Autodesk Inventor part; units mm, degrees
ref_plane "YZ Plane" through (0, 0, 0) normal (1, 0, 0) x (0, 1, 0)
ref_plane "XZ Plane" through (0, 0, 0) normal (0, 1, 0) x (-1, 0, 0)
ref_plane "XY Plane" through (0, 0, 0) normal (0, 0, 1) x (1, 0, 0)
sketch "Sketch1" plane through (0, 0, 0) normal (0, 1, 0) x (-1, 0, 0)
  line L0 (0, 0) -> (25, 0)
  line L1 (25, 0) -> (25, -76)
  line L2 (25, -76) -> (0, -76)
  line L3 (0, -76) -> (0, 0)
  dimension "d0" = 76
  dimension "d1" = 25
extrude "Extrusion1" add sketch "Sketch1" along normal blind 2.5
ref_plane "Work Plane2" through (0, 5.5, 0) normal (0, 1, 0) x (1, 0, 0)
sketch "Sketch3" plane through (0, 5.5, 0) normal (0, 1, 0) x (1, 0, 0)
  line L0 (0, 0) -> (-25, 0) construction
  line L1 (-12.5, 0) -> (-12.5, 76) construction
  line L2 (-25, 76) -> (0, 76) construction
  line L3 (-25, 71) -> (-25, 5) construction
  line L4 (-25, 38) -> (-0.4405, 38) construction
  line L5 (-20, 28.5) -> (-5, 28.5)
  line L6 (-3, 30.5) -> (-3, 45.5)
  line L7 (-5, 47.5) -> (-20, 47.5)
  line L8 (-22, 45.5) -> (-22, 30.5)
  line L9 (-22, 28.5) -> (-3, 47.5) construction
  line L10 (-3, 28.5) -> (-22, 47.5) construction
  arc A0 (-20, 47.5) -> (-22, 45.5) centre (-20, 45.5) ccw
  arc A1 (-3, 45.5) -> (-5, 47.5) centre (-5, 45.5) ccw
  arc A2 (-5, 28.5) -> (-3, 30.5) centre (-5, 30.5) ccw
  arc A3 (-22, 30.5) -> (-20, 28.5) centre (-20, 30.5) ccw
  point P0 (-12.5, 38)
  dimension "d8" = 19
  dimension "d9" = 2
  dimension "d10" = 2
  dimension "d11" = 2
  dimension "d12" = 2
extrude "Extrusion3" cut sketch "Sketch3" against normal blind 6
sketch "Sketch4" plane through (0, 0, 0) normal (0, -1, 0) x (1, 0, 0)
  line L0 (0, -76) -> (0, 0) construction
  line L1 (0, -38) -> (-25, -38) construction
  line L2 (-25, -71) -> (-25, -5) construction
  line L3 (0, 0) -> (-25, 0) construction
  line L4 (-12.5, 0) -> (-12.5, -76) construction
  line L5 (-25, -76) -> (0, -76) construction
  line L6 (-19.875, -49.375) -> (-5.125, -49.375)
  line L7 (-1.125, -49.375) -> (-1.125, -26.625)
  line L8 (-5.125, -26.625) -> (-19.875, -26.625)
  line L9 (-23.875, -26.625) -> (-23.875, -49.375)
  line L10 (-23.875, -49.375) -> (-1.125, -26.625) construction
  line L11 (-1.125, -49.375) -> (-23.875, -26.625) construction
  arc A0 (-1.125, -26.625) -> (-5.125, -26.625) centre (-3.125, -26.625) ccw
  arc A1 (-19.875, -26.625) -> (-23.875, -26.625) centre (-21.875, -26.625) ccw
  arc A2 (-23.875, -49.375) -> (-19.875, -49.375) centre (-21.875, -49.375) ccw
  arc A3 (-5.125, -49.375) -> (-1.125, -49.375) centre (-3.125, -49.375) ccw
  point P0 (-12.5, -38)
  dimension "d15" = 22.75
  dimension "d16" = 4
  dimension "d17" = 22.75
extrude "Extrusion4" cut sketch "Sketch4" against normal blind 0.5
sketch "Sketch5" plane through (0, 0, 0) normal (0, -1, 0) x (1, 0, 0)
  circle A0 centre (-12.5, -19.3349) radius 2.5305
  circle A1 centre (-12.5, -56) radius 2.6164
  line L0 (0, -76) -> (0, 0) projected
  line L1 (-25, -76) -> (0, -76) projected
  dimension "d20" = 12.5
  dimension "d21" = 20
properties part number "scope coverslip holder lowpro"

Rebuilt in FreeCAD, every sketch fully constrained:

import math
import FreeCAD as App
import Part
import Sketcher

V = App.Vector


def add_polygon(sketch, points):
    """Adds a closed chain of lines whose ends are joined by coincident constraints."""
    first, n = sketch.GeometryCount, len(points)
    for a, b in zip(points, points[1:] + points[:1]):
        sketch.addGeometry(Part.LineSegment(App.Vector(*a, 0), App.Vector(*b, 0)), False)
    for i in range(n):
        sketch.addConstraint(Sketcher.Constraint("Coincident", first + i, 2, first + (i + 1) % n, 1))

doc = App.newDocument("Part")
body = doc.addObject("PartDesign::Body", "Body")

sketch1 = doc.addObject("Sketcher::SketchObject", "Sketch")
body.addObject(sketch1)
sketch1.AttachmentSupport = (doc.XZ_Plane, [""])
sketch1.MapMode = "FlatFace"
add_polygon(sketch1, [(-25, 0), (0, 0), (0, -76), (-25, -76)])
sketch1.addConstraint([
    Sketcher.Constraint("Horizontal", 0),
    Sketcher.Constraint("Vertical", 1),
    Sketcher.Constraint("Horizontal", 2),
    Sketcher.Constraint("Vertical", 3),
    Sketcher.Constraint("Coincident", 0, 2, -1, 1),
    Sketcher.Constraint("DistanceX", 0, 1, 0, 2, 25.0),
    Sketcher.Constraint("DistanceY", 1, 2, 1, 1, 76.0),
])
pad1 = doc.addObject("PartDesign::Pad", "Pad")
body.addObject(pad1)
pad1.Profile = sketch1
pad1.Length = 2.5
pad1.Reversed = True

sketch2 = doc.addObject("Sketcher::SketchObject", "Sketch001")
body.addObject(sketch2)
sketch2.AttachmentSupport = (doc.XZ_Plane, [""])
sketch2.MapMode = "FlatFace"
sketch2.AttachmentOffset = App.Placement(V(0, 0, -5.5), App.Rotation())
sketch2.addGeometry([
    Part.ArcOfCircle(Part.Circle(V(-20, -30.5, 0), V(0, 0, 1), 2), math.radians(90), math.radians(180)),
    Part.LineSegment(V(-20, -28.5, 0), V(-5, -28.5, 0)),
    Part.ArcOfCircle(Part.Circle(V(-5, -30.5, 0), V(0, 0, 1), 2), math.radians(0), math.radians(90)),
    Part.LineSegment(V(-3, -30.5, 0), V(-3, -45.5, 0)),
    Part.ArcOfCircle(Part.Circle(V(-5, -45.5, 0), V(0, 0, 1), 2), math.radians(-90), math.radians(0)),
    Part.LineSegment(V(-5, -47.5, 0), V(-20, -47.5, 0)),
    Part.ArcOfCircle(Part.Circle(V(-20, -45.5, 0), V(0, 0, 1), 2), math.radians(180), math.radians(270)),
    Part.LineSegment(V(-22, -45.5, 0), V(-22, -30.5, 0)),
], False)
sketch2.addConstraint([
    Sketcher.Constraint("Tangent", 0, 1, 1, 1),
    Sketcher.Constraint("Tangent", 1, 2, 2, 2),
    Sketcher.Constraint("Tangent", 2, 1, 3, 1),
    Sketcher.Constraint("Tangent", 3, 2, 4, 2),
    Sketcher.Constraint("Tangent", 4, 1, 5, 1),
    Sketcher.Constraint("Tangent", 5, 2, 6, 2),
    Sketcher.Constraint("Tangent", 6, 1, 7, 1),
    Sketcher.Constraint("Tangent", 7, 2, 0, 2),
    Sketcher.Constraint("Horizontal", 1),
    Sketcher.Constraint("Vertical", 3),
    Sketcher.Constraint("Horizontal", 5),
    Sketcher.Constraint("Vertical", 7),
    Sketcher.Constraint("Equal", 0, 2),
    Sketcher.Constraint("Equal", 2, 4),
    Sketcher.Constraint("Equal", 4, 6),
    Sketcher.Constraint("Equal", 5, 3),
    Sketcher.Constraint("Radius", 0, 2.0),
    Sketcher.Constraint("DistanceX", 1, 1, 1, 2, 15.0),
    Sketcher.Constraint("DistanceX", 0, 3, -1, 1, 20.0),
    Sketcher.Constraint("DistanceY", 0, 3, -1, 1, 30.5),
])
pocket1 = doc.addObject("PartDesign::Pocket", "Pocket")
body.addObject(pocket1)
pocket1.Profile = sketch2
pocket1.Length = 6
pocket1.Reversed = True

sketch3 = doc.addObject("Sketcher::SketchObject", "Sketch002")
body.addObject(sketch3)
sketch3.AttachmentSupport = (doc.XZ_Plane, [""])
sketch3.MapMode = "FlatFace"
sketch3.addGeometry([
    Part.ArcOfCircle(Part.Circle(V(-21.9, -49.4, 0), V(0, 0, 1), 2), math.radians(180), math.radians(360)),
    Part.LineSegment(V(-19.9, -49.4, 0), V(-5.1, -49.4, 0)),
    Part.ArcOfCircle(Part.Circle(V(-3.1, -49.4, 0), V(0, 0, 1), 2), math.radians(180), math.radians(360)),
    Part.LineSegment(V(-1.1, -49.4, 0), V(-1.1, -26.6, 0)),
    Part.ArcOfCircle(Part.Circle(V(-3.1, -26.6, 0), V(0, 0, 1), 2), math.radians(0), math.radians(180)),
    Part.LineSegment(V(-5.1, -26.6, 0), V(-19.9, -26.6, 0)),
    Part.ArcOfCircle(Part.Circle(V(-21.9, -26.6, 0), V(0, 0, 1), 2), math.radians(0), math.radians(180)),
    Part.LineSegment(V(-23.9, -26.6, 0), V(-23.9, -49.4, 0)),
], False)
sketch3.addConstraint([
    Sketcher.Constraint("Coincident", 0, 2, 1, 1),
    Sketcher.Constraint("Coincident", 1, 2, 2, 1),
    Sketcher.Constraint("Tangent", 2, 2, 3, 1),
    Sketcher.Constraint("Tangent", 3, 2, 4, 1),
    Sketcher.Constraint("Coincident", 4, 2, 5, 1),
    Sketcher.Constraint("Coincident", 5, 2, 6, 1),
    Sketcher.Constraint("Tangent", 6, 2, 7, 1),
    Sketcher.Constraint("Tangent", 7, 2, 0, 1),
    Sketcher.Constraint("Horizontal", 1),
    Sketcher.Constraint("Vertical", 3),
    Sketcher.Constraint("Horizontal", 5),
    Sketcher.Constraint("Vertical", 7),
    Sketcher.Constraint("Equal", 0, 2),
    Sketcher.Constraint("Equal", 2, 4),
    Sketcher.Constraint("Equal", 4, 6),
    Sketcher.Constraint("Horizontal", 0, 3, 2, 3),
    Sketcher.Constraint("Horizontal", 4, 3, 6, 3),
    Sketcher.Constraint("Horizontal", 2, 3, 0, 2),
    Sketcher.Constraint("Horizontal", 3, 2, 4, 2),
    Sketcher.Constraint("Radius", 0, 2.0),
    Sketcher.Constraint("DistanceY", 3, 1, 3, 2, 22.75),
    Sketcher.Constraint("DistanceX", 6, 2, 3, 2, 22.75),
    Sketcher.Constraint("DistanceX", 0, 3, -1, 1, 21.875),
    Sketcher.Constraint("DistanceY", 0, 3, -1, 1, 49.375),
])
pocket2 = doc.addObject("PartDesign::Pocket", "Pocket001")
body.addObject(pocket2)
pocket2.Profile = sketch3
pocket2.Length = 0.5

doc.recompute()
